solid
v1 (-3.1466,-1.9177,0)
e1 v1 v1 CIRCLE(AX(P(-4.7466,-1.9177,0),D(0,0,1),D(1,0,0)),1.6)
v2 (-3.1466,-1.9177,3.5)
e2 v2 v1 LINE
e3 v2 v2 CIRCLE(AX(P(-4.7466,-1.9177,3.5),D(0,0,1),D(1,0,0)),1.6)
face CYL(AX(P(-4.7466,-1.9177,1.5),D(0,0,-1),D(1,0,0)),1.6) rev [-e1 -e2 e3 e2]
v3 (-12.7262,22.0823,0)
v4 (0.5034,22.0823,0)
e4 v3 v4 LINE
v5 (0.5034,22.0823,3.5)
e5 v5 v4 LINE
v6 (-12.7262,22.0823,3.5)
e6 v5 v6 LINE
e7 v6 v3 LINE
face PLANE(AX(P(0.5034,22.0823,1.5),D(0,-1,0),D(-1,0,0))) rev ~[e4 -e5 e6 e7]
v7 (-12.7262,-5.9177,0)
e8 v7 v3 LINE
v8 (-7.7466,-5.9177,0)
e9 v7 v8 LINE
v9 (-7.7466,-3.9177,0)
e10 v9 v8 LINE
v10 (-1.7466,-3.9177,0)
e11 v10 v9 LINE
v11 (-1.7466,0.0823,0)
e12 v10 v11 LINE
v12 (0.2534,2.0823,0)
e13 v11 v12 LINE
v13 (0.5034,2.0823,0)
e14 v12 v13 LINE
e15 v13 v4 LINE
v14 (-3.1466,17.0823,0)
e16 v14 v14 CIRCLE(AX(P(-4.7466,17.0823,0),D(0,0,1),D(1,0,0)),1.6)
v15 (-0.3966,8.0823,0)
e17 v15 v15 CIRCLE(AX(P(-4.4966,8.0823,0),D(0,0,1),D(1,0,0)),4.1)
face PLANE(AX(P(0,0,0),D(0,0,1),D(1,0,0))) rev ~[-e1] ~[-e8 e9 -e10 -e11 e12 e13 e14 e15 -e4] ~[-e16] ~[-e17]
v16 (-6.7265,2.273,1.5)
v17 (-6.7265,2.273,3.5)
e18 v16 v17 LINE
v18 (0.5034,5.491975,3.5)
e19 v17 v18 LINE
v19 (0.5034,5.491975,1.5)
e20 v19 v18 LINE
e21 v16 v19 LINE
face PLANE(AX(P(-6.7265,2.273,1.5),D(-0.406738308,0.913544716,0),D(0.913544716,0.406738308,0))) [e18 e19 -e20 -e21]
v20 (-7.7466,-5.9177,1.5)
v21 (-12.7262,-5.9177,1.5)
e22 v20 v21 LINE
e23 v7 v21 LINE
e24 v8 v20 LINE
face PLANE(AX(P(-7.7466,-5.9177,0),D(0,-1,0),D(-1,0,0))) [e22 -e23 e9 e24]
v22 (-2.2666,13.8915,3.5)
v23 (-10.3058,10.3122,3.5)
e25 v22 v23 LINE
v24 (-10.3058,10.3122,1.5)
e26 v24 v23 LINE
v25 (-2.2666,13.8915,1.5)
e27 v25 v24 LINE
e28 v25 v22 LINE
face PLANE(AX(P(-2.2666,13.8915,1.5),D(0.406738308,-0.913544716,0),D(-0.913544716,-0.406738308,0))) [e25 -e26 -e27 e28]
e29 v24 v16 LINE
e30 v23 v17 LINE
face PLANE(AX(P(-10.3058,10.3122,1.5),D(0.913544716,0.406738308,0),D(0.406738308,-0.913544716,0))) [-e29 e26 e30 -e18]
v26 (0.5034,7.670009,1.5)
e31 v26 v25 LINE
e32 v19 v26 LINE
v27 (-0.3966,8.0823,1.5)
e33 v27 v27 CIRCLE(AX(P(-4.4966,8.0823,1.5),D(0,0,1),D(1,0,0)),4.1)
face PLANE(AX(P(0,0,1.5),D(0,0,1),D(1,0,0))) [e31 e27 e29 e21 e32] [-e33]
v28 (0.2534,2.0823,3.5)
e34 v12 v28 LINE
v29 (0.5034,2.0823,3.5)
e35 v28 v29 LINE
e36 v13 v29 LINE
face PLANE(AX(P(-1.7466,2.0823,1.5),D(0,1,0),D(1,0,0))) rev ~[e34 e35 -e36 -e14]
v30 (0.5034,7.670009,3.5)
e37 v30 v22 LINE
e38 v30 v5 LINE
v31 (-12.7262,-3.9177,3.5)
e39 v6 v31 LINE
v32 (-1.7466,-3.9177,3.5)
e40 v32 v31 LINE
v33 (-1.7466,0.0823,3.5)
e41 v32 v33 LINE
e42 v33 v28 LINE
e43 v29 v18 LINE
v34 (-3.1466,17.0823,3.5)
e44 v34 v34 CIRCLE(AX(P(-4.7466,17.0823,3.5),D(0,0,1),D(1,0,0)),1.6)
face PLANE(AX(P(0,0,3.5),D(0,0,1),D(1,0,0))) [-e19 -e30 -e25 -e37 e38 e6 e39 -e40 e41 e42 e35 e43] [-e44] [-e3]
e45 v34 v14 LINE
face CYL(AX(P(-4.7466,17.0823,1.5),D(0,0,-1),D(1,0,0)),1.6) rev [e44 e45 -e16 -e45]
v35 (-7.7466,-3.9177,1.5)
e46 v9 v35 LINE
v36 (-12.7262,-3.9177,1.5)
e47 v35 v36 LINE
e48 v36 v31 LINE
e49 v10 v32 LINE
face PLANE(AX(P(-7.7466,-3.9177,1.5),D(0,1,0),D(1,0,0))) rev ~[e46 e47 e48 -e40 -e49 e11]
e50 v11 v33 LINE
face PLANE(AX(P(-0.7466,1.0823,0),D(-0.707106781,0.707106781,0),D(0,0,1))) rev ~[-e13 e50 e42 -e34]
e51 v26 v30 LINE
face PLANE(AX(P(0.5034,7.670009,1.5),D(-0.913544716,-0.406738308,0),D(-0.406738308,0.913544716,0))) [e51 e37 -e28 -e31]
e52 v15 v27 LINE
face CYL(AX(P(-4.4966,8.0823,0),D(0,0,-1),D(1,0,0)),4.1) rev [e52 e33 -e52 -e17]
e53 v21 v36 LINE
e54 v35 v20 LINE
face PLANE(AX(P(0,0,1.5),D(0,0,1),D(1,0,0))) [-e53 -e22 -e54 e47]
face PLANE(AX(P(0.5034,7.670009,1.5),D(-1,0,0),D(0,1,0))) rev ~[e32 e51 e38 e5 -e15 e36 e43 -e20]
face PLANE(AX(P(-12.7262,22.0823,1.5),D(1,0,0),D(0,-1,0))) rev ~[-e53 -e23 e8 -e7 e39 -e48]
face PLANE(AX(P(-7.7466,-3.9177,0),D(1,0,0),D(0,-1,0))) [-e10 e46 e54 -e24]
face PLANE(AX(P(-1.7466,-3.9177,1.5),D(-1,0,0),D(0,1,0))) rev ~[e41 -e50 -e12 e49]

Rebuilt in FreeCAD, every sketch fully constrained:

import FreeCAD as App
import Part
import Sketcher
from FreeCAD import Vector
Q = App.Units.Quantity


def edges_at(feature, points):
    """Names of the edges that pass closest to the given points."""
    edges = feature.Shape.Edges
    near = lambda p: min(range(len(edges)), key=lambda i: edges[i].distToShape(Part.Vertex(*p))[0])
    return sorted({f"Edge{near(p) + 1}" for p in points})


def add_polygon(sketch, points):
    """Adds a closed chain of lines whose ends are joined by coincident constraints."""
    first, n = sketch.GeometryCount, len(points)
    for a, b in zip(points, points[1:] + points[:1]):
        sketch.addGeometry(Part.LineSegment(App.Vector(*a, 0), App.Vector(*b, 0)), False)
    for i in range(n):
        sketch.addConstraint(Sketcher.Constraint("Coincident", first + i, 2, first + (i + 1) % n, 1))

doc = App.newDocument("Part")
params = doc.addObject("Spreadsheet::Sheet", "Params")
for row, (alias, value) in enumerate([
    ("sketch1_diameter", "3.2 mm"),
    ("sketch1_diameter2", "8.2 mm"),
    ("sketch1_width", "6 mm"),
    ("sketch1_height", "2 mm"),
    ("sketch1_height2", "20 mm"),
    ("pad1_length", "1.5 mm"),
    ("sketch2_length", "8.8 mm"),
    ("sketch2_diameter", "3.2 mm"),
    ("sketch2_height", "6 mm"),
    ("sketch2_height2", "26 mm"),
    ("sketch2_width", "2.25 mm"),
    ("pad2_length", "2 mm"),
    ("chamfer_size", "2 mm"),
], start=1):
    params.set(f"A{row}", alias)
    params.set(f"B{row}", "=" + value)
    params.setAlias(f"B{row}", alias)

body = doc.addObject("PartDesign::Body", "Body")

sketch1 = body.newObject("Sketcher::SketchObject", "Sketch")
sketch1.AttachmentSupport = (doc.getObject("XY_Plane"), [""])
sketch1.MapMode = "FlatFace"
add_polygon(sketch1, [(-7.7466, -5.9177), (-7.7466, -3.9177), (-1.7466, -3.9177), (-1.7466, 2.0823), (0.5034, 2.0823), (0.5034, 22.0823), (-12.7262, 22.0823), (-12.7262, -5.9177)])
sketch1.addGeometry(Part.Circle(Vector(-4.7466, 17.0823, 0), Vector(0, 0, 1), 1.6), False)
sketch1.addGeometry(Part.Circle(Vector(-4.4966, 8.0823, 0), Vector(0, 0, 1), 4.1), False)
sketch1.addGeometry(Part.Circle(Vector(-4.7466, -1.9177, 0), Vector(0, 0, 1), 1.6), False)
sketch1.addConstraint([
    Sketcher.Constraint("Vertical", 0),
    Sketcher.Constraint("Horizontal", 1),
    Sketcher.Constraint("Vertical", 2),
    Sketcher.Constraint("Horizontal", 3),
    Sketcher.Constraint("Vertical", 4),
    Sketcher.Constraint("Horizontal", 5),
    Sketcher.Constraint("Vertical", 6),
    Sketcher.Constraint("Horizontal", 7),
    Sketcher.Constraint("Equal", 8, 10),
    Sketcher.Constraint("Vertical", 8, 3, 10, 3),
    Sketcher.Constraint("Equal", 1, 2),
    Sketcher.Constraint("Diameter", 8, Q("3.2 mm")),
    Sketcher.Constraint("Diameter", 9, Q("8.2 mm")),
    Sketcher.Constraint("DistanceX", 1, 1, 1, 2, Q("6 mm")),
    Sketcher.Constraint("DistanceY", 0, 1, 0, 2, Q("2 mm")),
    Sketcher.Constraint("DistanceY", 4, 1, 4, 2, Q("20 mm")),
    Sketcher.Constraint("DistanceY", 9, 3, 8, 3, Q("9 mm")),
    Sketcher.Constraint("DistanceY", 10, 3, 8, 3, Q("19 mm")),
    Sketcher.Constraint("DistanceY", 0, 2, 10, 3, Q("2 mm")),
    Sketcher.Constraint("DistanceX", 8, 3, 9, 3, Q("0.25 mm")),
    Sketcher.Constraint("DistanceX", 10, 3, 3, 2, Q("5.25 mm")),
    Sketcher.Constraint("DistanceX", 0, 2, 10, 3, Q("3 mm")),
    Sketcher.Constraint("DistanceX", 5, 2, 5, 1, Q("13.2296 mm")),
    Sketcher.Constraint("DistanceX", 8, 3, -1, 1, Q("4.7466 mm")),
    Sketcher.Constraint("DistanceY", -1, 1, 8, 3, Q("17.0823 mm")),
])
sketch1.setExpression("Constraints[19]", "Params.sketch1_diameter")
sketch1.setExpression("Constraints[20]", "Params.sketch1_diameter2")
sketch1.setExpression("Constraints[21]", "Params.sketch1_width")
sketch1.setExpression("Constraints[22]", "Params.sketch1_height")
sketch1.setExpression("Constraints[23]", "Params.sketch1_height2")
pad1 = body.newObject("PartDesign::Pad", "Pad")
pad1.Profile = sketch1
pad1.setExpression("Length", "Params.pad1_length")

sketch2 = body.newObject("Sketcher::SketchObject", "Sketch001")
sketch2.AttachmentSupport = (doc.getObject("XY_Plane"), [""])
sketch2.MapMode = "FlatFace"
sketch2.AttachmentOffset = App.Placement(Vector(0, 0, 1.5), App.Rotation())
add_polygon(sketch2, [(-12.7262, -3.9177), (-1.7466, -3.9177), (-1.7466, 2.0823), (0.5034, 2.0823), (0.5034, 5.491975), (-6.7265, 2.273), (-10.3058, 10.3122), (-2.2666, 13.8915), (0.5034, 7.670009), (0.5034, 22.0823), (-12.7262, 22.0823)])
sketch2.addGeometry(Part.Circle(Vector(-4.7466, -1.9177, 0), Vector(0, 0, 1), 1.6), False)
sketch2.addGeometry(Part.Circle(Vector(-4.7466, 17.0823, 0), Vector(0, 0, 1), 1.6), False)
sketch2.addConstraint([
    Sketcher.Constraint("Horizontal", 0),
    Sketcher.Constraint("Vertical", 1),
    Sketcher.Constraint("Horizontal", 2),
    Sketcher.Constraint("Vertical", 3),
    Sketcher.Constraint("Vertical", 8),
    Sketcher.Constraint("Horizontal", 9),
    Sketcher.Constraint("Vertical", 10),
    Sketcher.Constraint("Equal", 11, 12),
    Sketcher.Constraint("Perpendicular", 4, 5),
    Sketcher.Constraint("Perpendicular", 5, 6),
    Sketcher.Constraint("Perpendicular", 6, 7),
    Sketcher.Constraint("Vertical", 11, 3, 12, 3),
    Sketcher.Constraint("Vertical", 3, 2, 7, 2),
    Sketcher.Constraint("Equal", 5, 6),
    Sketcher.Constraint("Angle", 5, Q("114 deg")),
    Sketcher.Constraint("Distance", 5, Q("8.8 mm")),
    Sketcher.Constraint("Diameter", 11, Q("3.2 mm")),
    Sketcher.Constraint("DistanceY", 1, 1, 1, 2, Q("6 mm")),
    Sketcher.Constraint("DistanceY", 10, 2, 10, 1, Q("26 mm")),
    Sketcher.Constraint("DistanceY", 11, 3, 12, 3, Q("19 mm")),
    Sketcher.Constraint("DistanceX", 11, 3, 0, 2, Q("3 mm")),
    Sketcher.Constraint("DistanceY", 0, 2, 11, 3, Q("2 mm")),
    Sketcher.Constraint("DistanceX", 2, 1, 2, 2, Q("2.25 mm")),
    Sketcher.Constraint("DistanceY", -1, 1, 7, 2, Q("7.67 mm")),
    Sketcher.Constraint("DistanceX", 4, 2, 11, 3, Q("1.98 mm")),
    Sketcher.Constraint("DistanceY", 5, 2, 12, 3, Q("6.77 mm")),
    Sketcher.Constraint("DistanceX", 0, 1, 0, 2, Q("10.9796 mm")),
    Sketcher.Constraint("DistanceX", 11, 3, -1, 1, Q("4.7466 mm")),
])
sketch2.setExpression("Constraints[26]", "Params.sketch2_length")
sketch2.setExpression("Constraints[27]", "Params.sketch2_diameter")
sketch2.setExpression("Constraints[28]", "Params.sketch2_height")
sketch2.setExpression("Constraints[29]", "Params.sketch2_height2")
sketch2.setExpression("Constraints[33]", "Params.sketch2_width")
pad2 = body.newObject("PartDesign::Pad", "Pad001")
pad2.Profile = sketch2
pad2.setExpression("Length", "Params.pad2_length")
doc.recompute()

chamfer = body.newObject("PartDesign::Chamfer", "Chamfer")
chamfer.Base = (pad2, edges_at(pad2, [(-1.747, 2.082, 1.75)]))
chamfer.setExpression("Size", "Params.chamfer_size")

doc.recompute()
